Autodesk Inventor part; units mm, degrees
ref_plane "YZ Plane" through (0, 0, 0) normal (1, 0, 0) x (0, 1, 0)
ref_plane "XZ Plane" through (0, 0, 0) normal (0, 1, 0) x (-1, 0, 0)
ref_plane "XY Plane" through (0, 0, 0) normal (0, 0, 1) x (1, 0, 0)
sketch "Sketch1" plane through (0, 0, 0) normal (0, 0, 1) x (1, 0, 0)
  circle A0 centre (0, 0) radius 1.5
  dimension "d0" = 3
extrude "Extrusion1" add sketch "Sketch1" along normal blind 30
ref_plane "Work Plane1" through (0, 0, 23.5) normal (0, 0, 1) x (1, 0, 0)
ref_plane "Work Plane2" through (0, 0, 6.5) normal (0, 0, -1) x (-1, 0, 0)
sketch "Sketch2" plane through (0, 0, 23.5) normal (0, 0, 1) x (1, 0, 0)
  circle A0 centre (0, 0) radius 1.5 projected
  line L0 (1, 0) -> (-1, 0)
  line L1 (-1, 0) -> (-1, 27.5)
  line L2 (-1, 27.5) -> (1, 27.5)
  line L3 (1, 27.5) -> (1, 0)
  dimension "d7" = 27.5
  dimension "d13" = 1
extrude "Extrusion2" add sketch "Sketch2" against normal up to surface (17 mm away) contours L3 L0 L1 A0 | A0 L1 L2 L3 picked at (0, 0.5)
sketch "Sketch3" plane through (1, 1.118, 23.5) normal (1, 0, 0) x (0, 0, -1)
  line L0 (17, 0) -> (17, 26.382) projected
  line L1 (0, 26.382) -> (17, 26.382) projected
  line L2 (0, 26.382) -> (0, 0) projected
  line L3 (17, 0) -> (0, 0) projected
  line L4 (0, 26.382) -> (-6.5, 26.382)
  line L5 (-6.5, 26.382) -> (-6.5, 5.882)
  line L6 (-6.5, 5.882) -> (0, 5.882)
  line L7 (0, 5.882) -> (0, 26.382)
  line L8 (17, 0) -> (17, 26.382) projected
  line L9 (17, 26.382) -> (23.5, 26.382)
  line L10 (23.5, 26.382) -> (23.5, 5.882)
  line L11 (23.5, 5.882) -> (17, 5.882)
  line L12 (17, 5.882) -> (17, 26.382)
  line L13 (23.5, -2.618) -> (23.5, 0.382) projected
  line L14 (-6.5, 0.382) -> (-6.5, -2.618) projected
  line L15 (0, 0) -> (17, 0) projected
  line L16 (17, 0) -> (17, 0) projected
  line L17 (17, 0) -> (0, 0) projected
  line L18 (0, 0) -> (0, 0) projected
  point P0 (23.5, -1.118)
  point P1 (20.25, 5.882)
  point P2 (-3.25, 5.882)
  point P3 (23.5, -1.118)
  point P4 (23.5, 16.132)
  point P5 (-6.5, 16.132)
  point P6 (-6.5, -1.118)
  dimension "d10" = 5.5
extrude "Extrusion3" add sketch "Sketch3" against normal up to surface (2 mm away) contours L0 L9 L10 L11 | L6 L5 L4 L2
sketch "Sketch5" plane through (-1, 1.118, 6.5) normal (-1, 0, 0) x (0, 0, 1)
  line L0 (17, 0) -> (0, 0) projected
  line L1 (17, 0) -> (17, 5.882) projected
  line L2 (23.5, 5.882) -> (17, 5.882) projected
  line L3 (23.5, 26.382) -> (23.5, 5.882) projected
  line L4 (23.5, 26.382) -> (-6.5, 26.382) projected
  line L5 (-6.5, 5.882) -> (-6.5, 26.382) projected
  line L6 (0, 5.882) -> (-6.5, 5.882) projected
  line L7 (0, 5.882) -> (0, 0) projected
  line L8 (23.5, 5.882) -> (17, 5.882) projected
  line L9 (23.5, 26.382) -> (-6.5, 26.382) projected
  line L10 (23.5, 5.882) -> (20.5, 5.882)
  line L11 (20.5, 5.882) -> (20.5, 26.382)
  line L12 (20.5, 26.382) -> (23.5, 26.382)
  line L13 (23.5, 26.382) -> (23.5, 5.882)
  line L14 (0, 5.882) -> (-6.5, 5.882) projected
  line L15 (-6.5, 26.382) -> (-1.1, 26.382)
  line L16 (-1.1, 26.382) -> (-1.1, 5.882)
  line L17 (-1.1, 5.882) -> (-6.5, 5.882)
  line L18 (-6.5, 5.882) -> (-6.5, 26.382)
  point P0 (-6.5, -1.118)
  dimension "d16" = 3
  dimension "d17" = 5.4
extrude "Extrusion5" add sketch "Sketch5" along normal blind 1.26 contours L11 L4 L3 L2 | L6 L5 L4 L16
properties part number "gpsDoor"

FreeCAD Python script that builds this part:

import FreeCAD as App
import Part
import Sketcher
from FreeCAD import Vector

doc = App.newDocument("Part")
body = doc.addObject("PartDesign::Body", "Body")

sketch1 = doc.addObject("Sketcher::SketchObject", "Sketch")
body.addObject(sketch1)
sketch1.AttachmentSupport = (doc.XY_Plane, [""])
sketch1.MapMode = "FlatFace"
sketch1.addGeometry(Part.Circle(Vector(0, 0, 0), Vector(0, 0, 1), 1.5), False)
sketch1.addConstraint(Sketcher.Constraint("Coincident", 0, 3, -1, 1))
sketch1.addConstraint(Sketcher.Constraint("Diameter", 0, 3.0))
pad1 = doc.addObject("PartDesign::Pad", "Pad")
body.addObject(pad1)
pad1.Profile = sketch1
pad1.Length = 30

sketch2 = doc.addObject("Sketcher::SketchObject", "Sketch001")
body.addObject(sketch2)
sketch2.AttachmentSupport = (doc.XY_Plane, [""])
sketch2.MapMode = "FlatFace"
sketch2.AttachmentOffset = App.Placement(Vector(0, 0, 23.5), App.Rotation())
sketch2.addGeometry(Part.LineSegment(Vector(1, 0, 0), Vector(1, 27.5, 0)), False)
sketch2.addGeometry(Part.LineSegment(Vector(1, 27.5, 0), Vector(-1, 27.5, 0)), False)
sketch2.addGeometry(Part.LineSegment(Vector(-1, 27.5, 0), Vector(-1, 0, 0)), False)
sketch2.addGeometry(Part.LineSegment(Vector(-1, 0, 0), Vector(1, 0, 0)), False)
sketch2.addConstraint(Sketcher.Constraint("Coincident", 0, 2, 1, 1))
sketch2.addConstraint(Sketcher.Constraint("Coincident", 1, 2, 2, 1))
sketch2.addConstraint(Sketcher.Constraint("Coincident", 2, 2, 3, 1))
sketch2.addConstraint(Sketcher.Constraint("Coincident", 3, 2, 0, 1))
sketch2.addConstraint(Sketcher.Constraint("Vertical", 0))
sketch2.addConstraint(Sketcher.Constraint("Horizontal", 1))
sketch2.addConstraint(Sketcher.Constraint("Vertical", 2))
sketch2.addConstraint(Sketcher.Constraint("Horizontal", 3))
sketch2.addConstraint(Sketcher.Constraint("Symmetric", 2, 2, 3, 2, -1, 1))
sketch2.addConstraint(Sketcher.Constraint("DistanceY", 0, 1, 0, 2, 27.5))
sketch2.addConstraint(Sketcher.Constraint("DistanceX", -1, 1, 0, 2, 1.0))
pad2 = doc.addObject("PartDesign::Pad", "Pad001")
body.addObject(pad2)
pad2.Profile = sketch2
pad2.Length = 17
pad2.Reversed = True

sketch3 = doc.addObject("Sketcher::SketchObject", "Sketch002")
body.addObject(sketch3)
sketch3.AttachmentSupport = (doc.YZ_Plane, [""])
sketch3.MapMode = "FlatFace"
sketch3.AttachmentOffset = App.Placement(Vector(0, 0, 1), App.Rotation())
sketch3.addGeometry(Part.LineSegment(Vector(28, 6, 0), Vector(7, 6, 0)), False)
sketch3.addGeometry(Part.LineSegment(Vector(7, 6, 0), Vector(7, 0, 0)), False)
sketch3.addGeometry(Part.LineSegment(Vector(7, 0, 0), Vector(28, 0, 0)), False)
sketch3.addGeometry(Part.LineSegment(Vector(28, 0, 0), Vector(28, 6, 0)), False)
sketch3.addGeometry(Part.LineSegment(Vector(7, 30, 0), Vector(7, 24, 0)), False)
sketch3.addGeometry(Part.LineSegment(Vector(7, 24, 0), Vector(28, 24, 0)), False)
sketch3.addGeometry(Part.LineSegment(Vector(28, 24, 0), Vector(28, 30, 0)), False)
sketch3.addGeometry(Part.LineSegment(Vector(28, 30, 0), Vector(7, 30, 0)), False)
sketch3.addConstraint(Sketcher.Constraint("Coincident", 0, 2, 1, 1))
sketch3.addConstraint(Sketcher.Constraint("Coincident", 1, 2, 2, 1))
sketch3.addConstraint(Sketcher.Constraint("Coincident", 2, 2, 3, 1))
sketch3.addConstraint(Sketcher.Constraint("Coincident", 3, 2, 0, 1))
sketch3.addConstraint(Sketcher.Constraint("Coincident", 4, 2, 5, 1))
sketch3.addConstraint(Sketcher.Constraint("Coincident", 5, 2, 6, 1))
sketch3.addConstraint(Sketcher.Constraint("Coincident", 6, 2, 7, 1))
sketch3.addConstraint(Sketcher.Constraint("Coincident", 7, 2, 4, 1))
sketch3.addConstraint(Sketcher.Constraint("Horizontal", 0))
sketch3.addConstraint(Sketcher.Constraint("Vertical", 1))
sketch3.addConstraint(Sketcher.Constraint("Horizontal", 2))
sketch3.addConstraint(Sketcher.Constraint("Vertical", 3))
sketch3.addConstraint(Sketcher.Constraint("Vertical", 4))
sketch3.addConstraint(Sketcher.Constraint("Horizontal", 5))
sketch3.addConstraint(Sketcher.Constraint("Vertical", 6))
sketch3.addConstraint(Sketcher.Constraint("Horizontal", 7))
sketch3.addConstraint(Sketcher.Constraint("PointOnObject", 1, 2, -1))
sketch3.addConstraint(Sketcher.Constraint("Vertical", 1, 2, 4, 2))
sketch3.addConstraint(Sketcher.Constraint("Vertical", 3, 2, 5, 2))
sketch3.addConstraint(Sketcher.Constraint("Equal", 3, 4))
sketch3.addConstraint(Sketcher.Constraint("DistanceX", 0, 2, 0, 1, 20.5))
sketch3.addConstraint(Sketcher.Constraint("DistanceY", 1, 2, 1, 1, 6.5))
sketch3.addConstraint(Sketcher.Constraint("DistanceX", -1, 1, 0, 2, 7.0))
sketch3.addConstraint(Sketcher.Constraint("DistanceY", -1, 1, 6, 2, 30.0))
pad3 = doc.addObject("PartDesign::Pad", "Pad002")
body.addObject(pad3)
pad3.Profile = sketch3
pad3.Length = 2
pad3.Reversed = True

sketch4 = doc.addObject("Sketcher::SketchObject", "Sketch003")
body.addObject(sketch4)
sketch4.AttachmentSupport = (doc.YZ_Plane, [""])
sketch4.MapMode = "FlatFace"
sketch4.AttachmentOffset = App.Placement(Vector(0, 0, -1), App.Rotation())
sketch4.addGeometry(Part.LineSegment(Vector(27.5, 27, 0), Vector(7, 27, 0)), False)
sketch4.addGeometry(Part.LineSegment(Vector(7, 27, 0), Vector(7, 30, 0)), False)
sketch4.addGeometry(Part.LineSegment(Vector(7, 30, 0), Vector(27.5, 30, 0)), False)
sketch4.addGeometry(Part.LineSegment(Vector(27.5, 30, 0), Vector(27.5, 27, 0)), False)
sketch4.addGeometry(Part.LineSegment(Vector(7, 0, 0), Vector(7, 5.4, 0)), False)
sketch4.addGeometry(Part.LineSegment(Vector(7, 5.4, 0), Vector(27.5, 5.4, 0)), False)
sketch4.addGeometry(Part.LineSegment(Vector(27.5, 5.4, 0), Vector(27.5, 0, 0)), False)
sketch4.addGeometry(Part.LineSegment(Vector(27.5, 0, 0), Vector(7, 0, 0)), False)
sketch4.addConstraint(Sketcher.Constraint("Coincident", 0, 2, 1, 1))
sketch4.addConstraint(Sketcher.Constraint("Coincident", 1, 2, 2, 1))
sketch4.addConstraint(Sketcher.Constraint("Coincident", 2, 2, 3, 1))
sketch4.addConstraint(Sketcher.Constraint("Coincident", 3, 2, 0, 1))
sketch4.addConstraint(Sketcher.Constraint("Coincident", 4, 2, 5, 1))
sketch4.addConstraint(Sketcher.Constraint("Coincident", 5, 2, 6, 1))
sketch4.addConstraint(Sketcher.Constraint("Coincident", 6, 2, 7, 1))
sketch4.addConstraint(Sketcher.Constraint("Coincident", 7, 2, 4, 1))
sketch4.addConstraint(Sketcher.Constraint("Horizontal", 0))
sketch4.addConstraint(Sketcher.Constraint("Vertical", 1))
sketch4.addConstraint(Sketcher.Constraint("Horizontal", 2))
sketch4.addConstraint(Sketcher.Constraint("Vertical", 3))
sketch4.addConstraint(Sketcher.Constraint("Vertical", 4))
sketch4.addConstraint(Sketcher.Constraint("Horizontal", 5))
sketch4.addConstraint(Sketcher.Constraint("Vertical", 6))
sketch4.addConstraint(Sketcher.Constraint("Horizontal", 7))
sketch4.addConstraint(Sketcher.Constraint("PointOnObject", 6, 2, -1))
sketch4.addConstraint(Sketcher.Constraint("Vertical", 1, 2, 4, 2))
sketch4.addConstraint(Sketcher.Constraint("Vertical", 3, 2, 5, 2))
sketch4.addConstraint(Sketcher.Constraint("DistanceY", 1, 1, 1, 2, 3.0))
sketch4.addConstraint(Sketcher.Constraint("DistanceY", 4, 1, 4, 2, 5.4))
sketch4.addConstraint(Sketcher.Constraint("DistanceX", 0, 2, 0, 1, 20.5))
sketch4.addConstraint(Sketcher.Constraint("DistanceX", -1, 1, 0, 2, 7.0))
sketch4.addConstraint(Sketcher.Constraint("DistanceY", -1, 1, 0, 2, 27.0))
pad4 = doc.addObject("PartDesign::Pad", "Pad003")
body.addObject(pad4)
pad4.Profile = sketch4
pad4.Length = 1.26
pad4.Reversed = True

doc.recompute()
